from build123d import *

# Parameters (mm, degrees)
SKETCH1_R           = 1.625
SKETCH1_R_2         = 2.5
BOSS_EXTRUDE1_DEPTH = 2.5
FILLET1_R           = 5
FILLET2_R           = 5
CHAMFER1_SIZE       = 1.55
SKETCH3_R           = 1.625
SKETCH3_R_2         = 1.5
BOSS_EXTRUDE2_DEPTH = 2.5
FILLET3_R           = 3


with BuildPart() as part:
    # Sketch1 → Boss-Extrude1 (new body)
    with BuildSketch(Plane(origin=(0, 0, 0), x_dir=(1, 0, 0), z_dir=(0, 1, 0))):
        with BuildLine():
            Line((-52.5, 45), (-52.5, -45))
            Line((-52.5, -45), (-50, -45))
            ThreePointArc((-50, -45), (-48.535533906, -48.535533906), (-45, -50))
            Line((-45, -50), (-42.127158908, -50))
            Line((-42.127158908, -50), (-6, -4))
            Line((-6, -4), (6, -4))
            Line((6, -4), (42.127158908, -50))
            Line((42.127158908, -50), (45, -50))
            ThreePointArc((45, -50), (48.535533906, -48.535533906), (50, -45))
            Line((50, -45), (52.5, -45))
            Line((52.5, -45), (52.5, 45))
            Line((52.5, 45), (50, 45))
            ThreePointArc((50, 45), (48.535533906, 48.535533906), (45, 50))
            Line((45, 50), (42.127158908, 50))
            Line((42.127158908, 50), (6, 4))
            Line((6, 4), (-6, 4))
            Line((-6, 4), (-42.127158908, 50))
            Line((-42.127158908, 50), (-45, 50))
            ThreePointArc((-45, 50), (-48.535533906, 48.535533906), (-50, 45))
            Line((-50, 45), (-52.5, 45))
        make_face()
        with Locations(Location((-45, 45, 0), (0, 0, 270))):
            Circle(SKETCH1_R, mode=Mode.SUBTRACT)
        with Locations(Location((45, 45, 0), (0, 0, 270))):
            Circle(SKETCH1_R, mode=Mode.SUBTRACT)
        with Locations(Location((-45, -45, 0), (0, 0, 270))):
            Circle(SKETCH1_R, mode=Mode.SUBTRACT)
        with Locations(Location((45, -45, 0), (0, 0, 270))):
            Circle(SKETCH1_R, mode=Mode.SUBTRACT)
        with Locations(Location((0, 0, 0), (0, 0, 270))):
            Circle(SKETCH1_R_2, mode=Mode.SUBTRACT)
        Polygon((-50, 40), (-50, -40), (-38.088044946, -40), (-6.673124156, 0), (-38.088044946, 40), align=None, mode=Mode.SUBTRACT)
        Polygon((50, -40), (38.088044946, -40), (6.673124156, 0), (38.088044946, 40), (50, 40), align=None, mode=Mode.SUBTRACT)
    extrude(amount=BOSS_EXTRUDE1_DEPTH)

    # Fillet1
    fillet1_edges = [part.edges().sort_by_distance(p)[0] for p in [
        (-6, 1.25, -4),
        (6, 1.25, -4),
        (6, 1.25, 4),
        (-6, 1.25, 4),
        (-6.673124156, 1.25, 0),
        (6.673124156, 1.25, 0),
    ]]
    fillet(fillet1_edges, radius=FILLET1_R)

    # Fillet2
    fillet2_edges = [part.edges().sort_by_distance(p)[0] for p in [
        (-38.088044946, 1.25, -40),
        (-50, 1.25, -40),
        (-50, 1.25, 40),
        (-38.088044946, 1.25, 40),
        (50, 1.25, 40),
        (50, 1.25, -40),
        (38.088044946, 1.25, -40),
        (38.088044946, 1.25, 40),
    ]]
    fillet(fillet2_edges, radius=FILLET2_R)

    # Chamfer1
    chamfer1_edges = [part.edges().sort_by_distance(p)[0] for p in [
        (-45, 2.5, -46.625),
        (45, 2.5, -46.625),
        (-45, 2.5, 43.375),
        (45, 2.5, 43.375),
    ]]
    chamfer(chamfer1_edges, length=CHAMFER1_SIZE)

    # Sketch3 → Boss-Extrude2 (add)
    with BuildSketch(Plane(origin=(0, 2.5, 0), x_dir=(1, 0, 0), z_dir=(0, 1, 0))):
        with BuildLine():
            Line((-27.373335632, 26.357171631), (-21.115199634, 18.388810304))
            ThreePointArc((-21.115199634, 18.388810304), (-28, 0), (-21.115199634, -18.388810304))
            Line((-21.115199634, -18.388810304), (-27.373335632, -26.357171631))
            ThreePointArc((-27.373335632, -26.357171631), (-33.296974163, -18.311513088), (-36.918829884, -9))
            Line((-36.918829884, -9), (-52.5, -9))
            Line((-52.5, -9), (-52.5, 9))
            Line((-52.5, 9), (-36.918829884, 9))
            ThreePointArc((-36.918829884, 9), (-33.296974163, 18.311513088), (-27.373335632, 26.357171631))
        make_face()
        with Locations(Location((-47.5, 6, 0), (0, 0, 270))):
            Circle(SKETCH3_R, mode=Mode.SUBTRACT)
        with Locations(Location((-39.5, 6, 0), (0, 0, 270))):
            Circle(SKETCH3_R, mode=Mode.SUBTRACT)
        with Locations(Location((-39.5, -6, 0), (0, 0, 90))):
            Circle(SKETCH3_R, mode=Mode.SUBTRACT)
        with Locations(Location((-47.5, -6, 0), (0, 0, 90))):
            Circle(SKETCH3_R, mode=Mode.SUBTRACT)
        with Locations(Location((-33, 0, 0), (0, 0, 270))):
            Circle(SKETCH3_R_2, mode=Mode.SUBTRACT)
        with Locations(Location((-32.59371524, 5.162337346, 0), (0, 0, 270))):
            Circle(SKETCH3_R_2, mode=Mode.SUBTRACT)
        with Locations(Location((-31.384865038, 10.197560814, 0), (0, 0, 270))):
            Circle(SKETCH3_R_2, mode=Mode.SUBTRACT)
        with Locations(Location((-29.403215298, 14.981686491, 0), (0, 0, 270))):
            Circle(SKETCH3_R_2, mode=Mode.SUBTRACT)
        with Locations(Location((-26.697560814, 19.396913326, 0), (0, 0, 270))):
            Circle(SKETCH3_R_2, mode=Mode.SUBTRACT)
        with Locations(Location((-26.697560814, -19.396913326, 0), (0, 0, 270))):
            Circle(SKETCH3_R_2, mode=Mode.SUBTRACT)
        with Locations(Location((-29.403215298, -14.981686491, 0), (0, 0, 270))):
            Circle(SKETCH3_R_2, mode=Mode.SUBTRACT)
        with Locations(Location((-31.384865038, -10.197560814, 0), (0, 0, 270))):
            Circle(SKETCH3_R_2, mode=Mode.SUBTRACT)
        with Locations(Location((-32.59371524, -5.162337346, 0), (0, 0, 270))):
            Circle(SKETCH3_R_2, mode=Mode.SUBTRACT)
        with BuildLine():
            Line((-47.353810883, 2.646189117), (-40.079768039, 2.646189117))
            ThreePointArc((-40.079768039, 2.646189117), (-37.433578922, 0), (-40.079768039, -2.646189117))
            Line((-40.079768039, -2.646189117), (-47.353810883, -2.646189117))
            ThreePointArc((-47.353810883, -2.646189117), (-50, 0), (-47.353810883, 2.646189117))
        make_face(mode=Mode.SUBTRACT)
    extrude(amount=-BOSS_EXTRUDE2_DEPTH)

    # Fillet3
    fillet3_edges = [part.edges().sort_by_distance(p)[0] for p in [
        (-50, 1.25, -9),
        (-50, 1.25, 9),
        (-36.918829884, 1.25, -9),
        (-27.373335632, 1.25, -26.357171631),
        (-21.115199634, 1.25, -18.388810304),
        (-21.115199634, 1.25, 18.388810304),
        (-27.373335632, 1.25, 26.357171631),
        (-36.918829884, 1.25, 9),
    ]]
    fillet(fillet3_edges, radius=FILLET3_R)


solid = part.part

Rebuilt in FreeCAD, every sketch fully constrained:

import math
import FreeCAD as App
import Part
import Sketcher

V = App.Vector


def edges_at(feature, points):
    """Names of the edges that pass closest to the given points."""
    edges = feature.Shape.Edges
    near = lambda p: min(range(len(edges)), key=lambda i: edges[i].distToShape(Part.Vertex(*p))[0])
    return sorted({f"Edge{near(p) + 1}" for p in points})

doc = App.newDocument("Part")
body = doc.addObject("PartDesign::Body", "Body")

# Sketch on XZ plane
sketch1 = doc.addObject("Sketcher::SketchObject", "Sketch")
body.addObject(sketch1)
sketch1.AttachmentSupport = (doc.XZ_Plane, [""])
sketch1.MapMode = "FlatFace"
sketch1.addGeometry([
    Part.LineSegment(V(-52.5, -45, 0), V(-52.5, 45, 0)),  # 0
    Part.LineSegment(V(-52.5, 45, 0), V(-50, 45, 0)),  # 1
    Part.ArcOfCircle(Part.Circle(V(-45, 45, 0), V(0, 0, 1), 5), math.radians(90), math.radians(180)),  # 2
    Part.LineSegment(V(-45, 50, 0), V(-42.1, 50, 0)),  # 3
    Part.LineSegment(V(-42.1, 50, 0), V(-6, 4, 0)),  # 4
    Part.LineSegment(V(-6, 4, 0), V(6, 4, 0)),  # 5
    Part.LineSegment(V(6, 4, 0), V(42.1, 50, 0)),  # 6
    Part.LineSegment(V(42.1, 50, 0), V(45, 50, 0)),  # 7
    Part.ArcOfCircle(Part.Circle(V(45, 45, 0), V(0, 0, 1), 5), math.radians(0), math.radians(90)),  # 8
    Part.LineSegment(V(50, 45, 0), V(52.5, 45, 0)),  # 9
    Part.LineSegment(V(52.5, 45, 0), V(52.5, -45, 0)),  # 10
    Part.LineSegment(V(52.5, -45, 0), V(50, -45, 0)),  # 11
    Part.ArcOfCircle(Part.Circle(V(45, -45, 0), V(0, 0, 1), 5), math.radians(-90), math.radians(0)),  # 12
    Part.LineSegment(V(45, -50, 0), V(42.1, -50, 0)),  # 13
    Part.LineSegment(V(42.1, -50, 0), V(6, -4, 0)),  # 14
    Part.LineSegment(V(6, -4, 0), V(-6, -4, 0)),  # 15
    Part.LineSegment(V(-6, -4, 0), V(-42.1, -50, 0)),  # 16
    Part.LineSegment(V(-42.1, -50, 0), V(-45, -50, 0)),  # 17
    Part.ArcOfCircle(Part.Circle(V(-45, -45, 0), V(0, 0, 1), 5), math.radians(180), math.radians(270)),  # 18
    Part.LineSegment(V(-50, -45, 0), V(-52.5, -45, 0)),  # 19
    Part.Circle(V(-45, 45, 0), V(0, 0, 1), 1.6),  # 20
    Part.Circle(V(45, 45, 0), V(0, 0, 1), 1.6),  # 21
    Part.LineSegment(V(-50, 40, 0), V(-50, -40, 0)),  # 22
    Part.LineSegment(V(-50, -40, 0), V(-38.1, -40, 0)),  # 23
    Part.LineSegment(V(-38.1, -40, 0), V(-6.7, 0, 0)),  # 24
    Part.LineSegment(V(-6.7, 0, 0), V(-38.1, 40, 0)),  # 25
    Part.LineSegment(V(-38.1, 40, 0), V(-50, 40, 0)),  # 26
    Part.Circle(V(-45, -45, 0), V(0, 0, 1), 1.6),  # 27
    Part.Circle(V(0, 0, 0), V(0, 0, 1), 2.5),  # 28
    Part.LineSegment(V(50, -40, 0), V(50, 40, 0)),  # 29
    Part.LineSegment(V(50, 40, 0), V(38.1, 40, 0)),  # 30
    Part.LineSegment(V(38.1, 40, 0), V(6.7, 0, 0)),  # 31
    Part.LineSegment(V(6.7, 0, 0), V(38.1, -40, 0)),  # 32
    Part.LineSegment(V(38.1, -40, 0), V(50, -40, 0)),  # 33
    Part.Circle(V(45, -45, 0), V(0, 0, 1), 1.6),  # 34
], False)
sketch1.addConstraint([
    Sketcher.Constraint("Coincident", 0, 2, 1, 1),
    Sketcher.Constraint("Coincident", 1, 2, 2, 2),
    Sketcher.Constraint("Tangent", 2, 1, 3, 1),
    Sketcher.Constraint("Coincident", 3, 2, 4, 1),
    Sketcher.Constraint("Coincident", 4, 2, 5, 1),
    Sketcher.Constraint("Coincident", 5, 2, 6, 1),
    Sketcher.Constraint("Coincident", 6, 2, 7, 1),
    Sketcher.Constraint("Tangent", 7, 2, 8, 2),
    Sketcher.Constraint("Coincident", 8, 1, 9, 1),
    Sketcher.Constraint("Coincident", 9, 2, 10, 1),
    Sketcher.Constraint("Coincident", 10, 2, 11, 1),
    Sketcher.Constraint("Coincident", 11, 2, 12, 2),
    Sketcher.Constraint("Tangent", 12, 1, 13, 1),
    Sketcher.Constraint("Coincident", 13, 2, 14, 1),
    Sketcher.Constraint("Coincident", 14, 2, 15, 1),
    Sketcher.Constraint("Coincident", 15, 2, 16, 1),
    Sketcher.Constraint("Coincident", 16, 2, 17, 1),
    Sketcher.Constraint("Tangent", 17, 2, 18, 2),
    Sketcher.Constraint("Coincident", 18, 1, 19, 1),
    Sketcher.Constraint("Coincident", 19, 2, 0, 1),
    Sketcher.Constraint("Coincident", 22, 2, 23, 1),
    Sketcher.Constraint("Coincident", 23, 2, 24, 1),
    Sketcher.Constraint("Coincident", 24, 2, 25, 1),
    Sketcher.Constraint("Coincident", 25, 2, 26, 1),
    Sketcher.Constraint("Coincident", 26, 2, 22, 1),
    Sketcher.Constraint("Coincident", 29, 2, 30, 1),
    Sketcher.Constraint("Coincident", 30, 2, 31, 1),
    Sketcher.Constraint("Coincident", 31, 2, 32, 1),
    Sketcher.Constraint("Coincident", 32, 2, 33, 1),
    Sketcher.Constraint("Coincident", 33, 2, 29, 1),
    Sketcher.Constraint("Vertical", 0),
    Sketcher.Constraint("Horizontal", 1),
    Sketcher.Constraint("Horizontal", 3),
    Sketcher.Constraint("Horizontal", 5),
    Sketcher.Constraint("Horizontal", 7),
    Sketcher.Constraint("Horizontal", 9),
    Sketcher.Constraint("Vertical", 10),
    Sketcher.Constraint("Horizontal", 11),
    Sketcher.Constraint("Horizontal", 13),
    Sketcher.Constraint("Horizontal", 15),
    Sketcher.Constraint("Horizontal", 17),
    Sketcher.Constraint("Horizontal", 19),
    Sketcher.Constraint("Vertical", 22),
    Sketcher.Constraint("Horizontal", 23),
    Sketcher.Constraint("Horizontal", 26),
    Sketcher.Constraint("Vertical", 29),
    Sketcher.Constraint("Horizontal", 30),
    Sketcher.Constraint("Horizontal", 33),
    Sketcher.Constraint("Coincident", 28, 3, -1, 1),
    Sketcher.Constraint("Coincident", 20, 3, 2, 3),
    Sketcher.Constraint("Coincident", 21, 3, 8, 3),
    Sketcher.Constraint("Coincident", 27, 3, 18, 3),
    Sketcher.Constraint("Coincident", 34, 3, 12, 3),
    Sketcher.Constraint("Equal", 2, 8),
    Sketcher.Constraint("Equal", 8, 12),
    Sketcher.Constraint("Equal", 12, 18),
    Sketcher.Constraint("Equal", 20, 21),
    Sketcher.Constraint("Equal", 21, 27),
    Sketcher.Constraint("Equal", 27, 34),
    Sketcher.Constraint("Symmetric", 2, 3, 12, 3, -1, 1),
    Sketcher.Constraint("Symmetric", 8, 3, 18, 3, -1, 1),
    Sketcher.Constraint("Symmetric", 0, 2, 10, 2, -1, 1),
    Sketcher.Constraint("Symmetric", 4, 2, 14, 2, -1, 1),
    Sketcher.Constraint("Symmetric", 22, 2, 29, 2, -1, 1),
    Sketcher.Constraint("Symmetric", 24, 2, 31, 2, -1, 1),
    Sketcher.Constraint("Symmetric", 25, 2, 32, 2, -1, 1),
    Sketcher.Constraint("Symmetric", 2, 3, 8, 3, -2),
    Sketcher.Constraint("Symmetric", 25, 2, 30, 2, -2),
    Sketcher.Constraint("PointOnObject", 24, 2, -1),
    Sketcher.Constraint("Parallel", 4, 14),
    Sketcher.Constraint("Parallel", 6, 16),
    Sketcher.Constraint("Parallel", 16, 24),
    Sketcher.Constraint("Parallel", 14, 25),
    Sketcher.Constraint("Parallel", 24, 31),
    Sketcher.Constraint("Horizontal", 21, 3, 0, 2),
    Sketcher.Constraint("Horizontal", 1, 2, 8, 1),
    Sketcher.Constraint("Horizontal", 11, 2, 18, 1),
    Sketcher.Constraint("Vertical", 6, 2, 13, 2),
    Sketcher.Constraint("Vertical", 4, 2, 15, 2),
    Sketcher.Constraint("Vertical", 18, 1, 22, 2),
    Sketcher.Constraint("Diameter", 28, 5.0),
    Sketcher.Constraint("Radius", 2, 5.0),
    Sketcher.Constraint("Diameter", 20, 3.25),
    Sketcher.Constraint("DistanceX", 5, 1, 5, 2, 12.0),
    Sketcher.Constraint("DistanceY", 0, 1, 0, 2, 90.0),
    Sketcher.Constraint("DistanceY", 22, 2, 22, 1, 80.0),
    Sketcher.Constraint("DistanceX", 1, 1, 1, 2, 2.5),
    Sketcher.Constraint("DistanceX", 2, 3, -1, 1, 45.0),
    Sketcher.Constraint("DistanceY", -1, 1, 4, 2, 4.0),
    Sketcher.Constraint("DistanceX", 3, 1, 3, 2, 2.872841),
    Sketcher.Constraint("DistanceX", 23, 1, 23, 2, 11.911955),
])
pad1 = doc.addObject("PartDesign::Pad", "Pad")
body.addObject(pad1)
pad1.Profile = sketch1
pad1.Length = 2.5
pad1.Reversed = True
doc.recompute()

fillet = doc.addObject("PartDesign::Fillet", "Fillet")
body.addObject(fillet)
fillet.Base = (pad1, edges_at(pad1, [
    (-6, 1.25, -4),
    (6, 1.25, -4),
    (6, 1.25, 4),
    (-6, 1.25, 4),
    (-6.673, 1.25, 0),
    (6.673, 1.25, 0),
]))
fillet.Radius = 5
doc.recompute()

fillet2 = doc.addObject("PartDesign::Fillet", "Fillet001")
body.addObject(fillet2)
fillet2.Base = (fillet, edges_at(fillet, [
    (-38.088, 1.25, -40),
    (-50, 1.25, -40),
    (-50, 1.25, 40),
    (-38.088, 1.25, 40),
    (50, 1.25, 40),
    (50, 1.25, -40),
    (38.088, 1.25, -40),
    (38.088, 1.25, 40),
]))
fillet2.Radius = 5
doc.recompute()

chamfer = doc.addObject("PartDesign::Chamfer", "Chamfer")
body.addObject(chamfer)
chamfer.Base = (fillet2, edges_at(fillet2, [
    (-45, 2.5, -46.625),
    (45, 2.5, -46.625),
    (-45, 2.5, 43.375),
    (45, 2.5, 43.375),
]))
chamfer.Size = 1.55

# Sketch on XZ plane
sketch2 = doc.addObject("Sketcher::SketchObject", "Sketch001")
body.addObject(sketch2)
sketch2.AttachmentSupport = (doc.XZ_Plane, [""])
sketch2.MapMode = "FlatFace"
sketch2.AttachmentOffset = App.Placement(V(0, 0, -2.5), App.Rotation())
sketch2.addGeometry([
    Part.LineSegment(V(-21.1, -18.4, 0), V(-27.4, -26.4, 0)),  # 0
    Part.ArcOfCircle(Part.Circle(V(0, 0, 0), V(0, 0, 1), 38), math.radians(-166), math.radians(-136)),  # 1
    Part.LineSegment(V(-36.9, -9, 0), V(-52.5, -9, 0)),  # 2
    Part.LineSegment(V(-52.5, -9, 0), V(-52.5, 9, 0)),  # 3
    Part.LineSegment(V(-52.5, 9, 0), V(-36.9, 9, 0)),  # 4
    Part.ArcOfCircle(Part.Circle(V(0, 0, 0), V(0, 0, 1), 38), math.radians(136), math.radians(166)),  # 5
    Part.LineSegment(V(-27.4, 26.4, 0), V(-21.1, 18.4, 0)),  # 6
    Part.ArcOfCircle(Part.Circle(V(0, 0, 0), V(0, 0, 1), 28), math.radians(139), math.radians(221)),  # 7
    Part.Circle(V(-26.7, 19.4, 0), V(0, 0, 1), 1.5),  # 8
    Part.Circle(V(-29.4, 15, 0), V(0, 0, 1), 1.5),  # 9
    Part.Circle(V(-31.4, 10.2, 0), V(0, 0, 1), 1.5),  # 10
    Part.Circle(V(-32.6, 5.2, 0), V(0, 0, 1), 1.5),  # 11
    Part.Circle(V(-39.5, 6, 0), V(0, 0, 1), 1.6),  # 12
    Part.Circle(V(-47.5, 6, 0), V(0, 0, 1), 1.6),  # 13
    Part.Circle(V(-31.4, -10.2, 0), V(0, 0, 1), 1.5),  # 14
    Part.Circle(V(-33, 0, 0), V(0, 0, 1), 1.5),  # 15
    Part.Circle(V(-32.6, -5.2, 0), V(0, 0, 1), 1.5),  # 16
    Part.Circle(V(-29.4, -15, 0), V(0, 0, 1), 1.5),  # 17
    Part.Circle(V(-26.7, -19.4, 0), V(0, 0, 1), 1.5),  # 18
    Part.LineSegment(V(-47.4, -2.6, 0), V(-40.1, -2.6, 0)),  # 19
    Part.ArcOfCircle(Part.Circle(V(-40.1, 0, 0), V(0, 0, 1), 2.6), math.radians(-90), math.radians(90)),  # 20
    Part.LineSegment(V(-40.1, 2.6, 0), V(-47.4, 2.6, 0)),  # 21
    Part.ArcOfCircle(Part.Circle(V(-47.4, 0, 0), V(0, 0, 1), 2.6), math.radians(90), math.radians(270)),  # 22
    Part.Circle(V(-39.5, -6, 0), V(0, 0, 1), 1.6),  # 23
    Part.Circle(V(-47.5, -6, 0), V(0, 0, 1), 1.6),  # 24
], False)
sketch2.addConstraint([
    Sketcher.Constraint("Coincident", 0, 2, 1, 2),
    Sketcher.Constraint("Coincident", 1, 1, 2, 1),
    Sketcher.Constraint("Coincident", 2, 2, 3, 1),
    Sketcher.Constraint("Coincident", 3, 2, 4, 1),
    Sketcher.Constraint("Coincident", 4, 2, 5, 2),
    Sketcher.Constraint("Coincident", 5, 1, 6, 1),
    Sketcher.Constraint("Coincident", 6, 2, 7, 1),
    Sketcher.Constraint("Coincident", 7, 2, 0, 1),
    Sketcher.Constraint("Tangent", 19, 2, 20, 1),
    Sketcher.Constraint("Tangent", 20, 2, 21, 1),
    Sketcher.Constraint("Tangent", 21, 2, 22, 1),
    Sketcher.Constraint("Tangent", 22, 2, 19, 1),
    Sketcher.Constraint("Horizontal", 2),
    Sketcher.Constraint("Vertical", 3),
    Sketcher.Constraint("Horizontal", 4),
    Sketcher.Constraint("Horizontal", 19),
    Sketcher.Constraint("Horizontal", 21),
    Sketcher.Constraint("Coincident", 1, 3, -1, 1),
    Sketcher.Constraint("Coincident", 5, 3, -1, 1),
    Sketcher.Constraint("Coincident", 7, 3, -1, 1),
    Sketcher.Constraint("Equal", 1, 5),
    Sketcher.Constraint("Equal", 8, 9),
    Sketcher.Constraint("Equal", 9, 10),
    Sketcher.Constraint("Equal", 10, 11),
    Sketcher.Constraint("Equal", 12, 13),
    Sketcher.Constraint("Equal", 11, 14),
    Sketcher.Constraint("Equal", 14, 15),
    Sketcher.Constraint("Equal", 15, 16),
    Sketcher.Constraint("Equal", 16, 17),
    Sketcher.Constraint("Equal", 17, 18),
    Sketcher.Constraint("Equal", 13, 23),
    Sketcher.Constraint("Equal", 23, 24),
    Sketcher.Constraint("Symmetric", 10, 3, 14, 3, -1),
    Sketcher.Constraint("Symmetric", 11, 3, 16, 3, -1),
    Sketcher.Constraint("Symmetric", 9, 3, 17, 3, -1),
    Sketcher.Constraint("Symmetric", 8, 3, 18, 3, -1),
    Sketcher.Constraint("Symmetric", 12, 3, 23, 3, -1),
    Sketcher.Constraint("Symmetric", 13, 3, 24, 3, -1),
    Sketcher.Constraint("PointOnObject", 15, 3, -1),
    Sketcher.Constraint("PointOnObject", 20, 3, -1),
    Sketcher.Constraint("Horizontal", 12, 3, 13, 3),
    Sketcher.Constraint("Vertical", 1, 1, 4, 2),
    Sketcher.Constraint("Vertical", 0, 2, 5, 1),
    Sketcher.Constraint("Vertical", 6, 2, 7, 2),
    Sketcher.Constraint("Diameter", 8, 3.0),
    Sketcher.Constraint("Radius", 1, 38.0),
    Sketcher.Constraint("Radius", 7, 28.0),
    Sketcher.Constraint("Diameter", 12, 3.25),
    Sketcher.Constraint("DistanceY", 3, 1, 3, 2, 18.0),
    Sketcher.Constraint("DistanceY", -1, 1, 12, 3, 6.0),
    Sketcher.Constraint("DistanceX", 15, 3, -1, 1, 33.0),
    Sketcher.Constraint("DistanceX", 13, 3, 12, 3, 8.0),
    Sketcher.Constraint("DistanceX", 2, 2, 24, 3, 5.0),
    Sketcher.Constraint("DistanceX", 12, 3, -1, 1, 39.5),
    Sketcher.Constraint("Radius", 20, 2.646189),
    Sketcher.Constraint("DistanceX", 6, 2, -1, 1, 21.1152),
    Sketcher.Constraint("DistanceX", 11, 3, 9, 3, 3.1905),
    Sketcher.Constraint("DistanceY", 14, 3, 11, 3, 15.359898),
    Sketcher.Constraint("Distance", 0, 10.13208),
    Sketcher.Constraint("DistanceX", 19, 1, 19, 2, 7.274043),
    Sketcher.Constraint("DistanceX", 8, 3, -1, 1, 26.697561),
    Sketcher.Constraint("DistanceY", -1, 1, 10, 3, 10.197561),
    Sketcher.Constraint("DistanceX", 20, 3, -1, 1, 40.079768),
    Sketcher.Constraint("DistanceX", 10, 3, 9, 3, 1.98165),
    Sketcher.Constraint("DistanceY", 11, 3, 9, 3, 9.819349),
    Sketcher.Constraint("DistanceY", 18, 3, 11, 3, 24.559251),
    Sketcher.Constraint("DistanceX", 17, 3, 0, 2, 2.02988),
])
pad2 = doc.addObject("PartDesign::Pad", "Pad001")
body.addObject(pad2)
pad2.Profile = sketch2
pad2.Length = 2.5
doc.recompute()

fillet3 = doc.addObject("PartDesign::Fillet", "Fillet002")
body.addObject(fillet3)
fillet3.Base = (pad2, edges_at(pad2, [
    (-50, 1.25, -9),
    (-50, 1.25, 9),
    (-36.919, 1.25, -9),
    (-27.373, 1.25, -26.357),
    (-21.115, 1.25, -18.389),
    (-21.115, 1.25, 18.389),
    (-27.373, 1.25, 26.357),
    (-36.919, 1.25, 9),
]))
fillet3.Radius = 3

doc.recompute()
